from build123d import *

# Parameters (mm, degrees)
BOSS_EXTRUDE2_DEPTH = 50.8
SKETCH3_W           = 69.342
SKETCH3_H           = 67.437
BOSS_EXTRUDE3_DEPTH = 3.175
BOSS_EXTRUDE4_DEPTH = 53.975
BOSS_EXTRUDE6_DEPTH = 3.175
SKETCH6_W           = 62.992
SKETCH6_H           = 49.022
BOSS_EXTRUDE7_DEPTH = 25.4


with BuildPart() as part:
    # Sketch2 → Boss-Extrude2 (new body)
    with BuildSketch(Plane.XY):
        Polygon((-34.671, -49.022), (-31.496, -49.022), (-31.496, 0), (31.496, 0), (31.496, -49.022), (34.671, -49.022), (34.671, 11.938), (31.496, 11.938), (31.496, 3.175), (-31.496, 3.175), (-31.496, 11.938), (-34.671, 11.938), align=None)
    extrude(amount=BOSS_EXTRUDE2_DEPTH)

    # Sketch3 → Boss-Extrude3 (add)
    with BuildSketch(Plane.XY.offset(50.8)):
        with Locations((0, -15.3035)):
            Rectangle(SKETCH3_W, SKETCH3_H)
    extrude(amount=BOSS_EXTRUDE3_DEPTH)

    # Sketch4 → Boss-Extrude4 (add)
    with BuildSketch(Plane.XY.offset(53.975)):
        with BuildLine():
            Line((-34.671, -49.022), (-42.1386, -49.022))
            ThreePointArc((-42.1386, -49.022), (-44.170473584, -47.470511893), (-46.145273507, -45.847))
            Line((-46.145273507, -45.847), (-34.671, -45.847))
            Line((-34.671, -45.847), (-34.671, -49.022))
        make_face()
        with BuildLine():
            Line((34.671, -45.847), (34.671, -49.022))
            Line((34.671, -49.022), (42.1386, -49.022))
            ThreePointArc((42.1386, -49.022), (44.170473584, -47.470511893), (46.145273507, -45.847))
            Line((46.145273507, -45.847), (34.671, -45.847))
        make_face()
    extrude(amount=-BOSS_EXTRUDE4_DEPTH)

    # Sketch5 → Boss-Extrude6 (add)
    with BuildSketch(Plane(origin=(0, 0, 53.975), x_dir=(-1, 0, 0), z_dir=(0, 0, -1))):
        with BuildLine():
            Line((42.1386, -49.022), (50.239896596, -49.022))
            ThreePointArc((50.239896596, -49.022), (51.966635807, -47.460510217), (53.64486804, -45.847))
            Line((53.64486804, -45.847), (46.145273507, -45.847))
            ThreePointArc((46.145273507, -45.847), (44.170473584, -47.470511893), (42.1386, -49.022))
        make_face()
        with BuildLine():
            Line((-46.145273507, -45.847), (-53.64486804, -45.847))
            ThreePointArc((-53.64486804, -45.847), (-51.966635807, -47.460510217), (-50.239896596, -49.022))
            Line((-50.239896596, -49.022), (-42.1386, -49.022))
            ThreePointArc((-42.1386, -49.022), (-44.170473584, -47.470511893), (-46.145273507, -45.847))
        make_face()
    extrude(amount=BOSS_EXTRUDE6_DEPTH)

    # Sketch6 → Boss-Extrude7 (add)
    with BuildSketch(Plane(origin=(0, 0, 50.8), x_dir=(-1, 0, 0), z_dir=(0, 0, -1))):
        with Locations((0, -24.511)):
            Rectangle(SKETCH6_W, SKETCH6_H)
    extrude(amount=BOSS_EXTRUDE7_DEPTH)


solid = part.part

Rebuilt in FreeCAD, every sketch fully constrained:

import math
import FreeCAD as App
import Part
import Sketcher
Q = App.Units.Quantity

doc = App.newDocument("Part")
params = doc.addObject("Spreadsheet::Sheet", "Params")
for row, (alias, value) in enumerate([
    ("sketch1_height", "2.4 in"),
    ("sketch1_width", "2.48 in"),
    ("sketch1_height2", "1.93 in"),
    ("sketch1_width2", "0.125 in"),
    ("sketch1_height3", "0.345 in"),
    ("pad1_length", "2 in"),
    ("sketch2_width", "2.73 in"),
    ("sketch2_height", "2.655 in"),
    ("pad2_length", "0.125 in"),
    ("sketch3_radius", "2.8 in"),
    ("sketch3_width", "0.294 in"),
    ("sketch3_height", "0.125 in"),
    ("pad3_length", "2.125 in"),
    ("sketch4_radius", "3 in"),
    ("sketch4_radius2", "2.8 in"),
    ("pad4_length", "0.125 in"),
    ("sketch5_width", "2.48 in"),
    ("sketch5_height", "1.93 in"),
    ("pad5_length", "1 in"),
], start=1):
    params.set(f"A{row}", alias)
    params.set(f"B{row}", "=" + value)
    params.setAlias(f"B{row}", alias)

body = doc.addObject("PartDesign::Body", "Body")

sketch1 = body.newObject("Sketcher::SketchObject", "Sketch")
sketch1.AttachmentSupport = (doc.getObject("XY_Plane"), [""])
sketch1.MapMode = "FlatFace"
sketch1.addGeometry([
    Part.LineSegment(App.Vector(-34.7, -49, 0), App.Vector(-31.5, -49, 0)),
    Part.LineSegment(App.Vector(-31.5, -49, 0), App.Vector(-31.5, 0, 0)),
    Part.LineSegment(App.Vector(-31.5, 0, 0), App.Vector(31.5, 0, 0)),
    Part.LineSegment(App.Vector(31.5, 0, 0), App.Vector(31.5, -49, 0)),
    Part.LineSegment(App.Vector(31.5, -49, 0), App.Vector(34.7, -49, 0)),
    Part.LineSegment(App.Vector(34.7, -49, 0), App.Vector(34.7, 11.9, 0)),
    Part.LineSegment(App.Vector(34.7, 11.9, 0), App.Vector(31.5, 11.9, 0)),
    Part.LineSegment(App.Vector(31.5, 11.9, 0), App.Vector(31.5, 3.2, 0)),
    Part.LineSegment(App.Vector(31.5, 3.2, 0), App.Vector(-31.5, 3.2, 0)),
    Part.LineSegment(App.Vector(-31.5, 3.2, 0), App.Vector(-31.5, 11.9, 0)),
    Part.LineSegment(App.Vector(-31.5, 11.9, 0), App.Vector(-34.7, 11.9, 0)),
    Part.LineSegment(App.Vector(-34.7, 11.9, 0), App.Vector(-34.7, -49, 0)),
], False)
sketch1.addConstraint([
    Sketcher.Constraint("Coincident", 0, 2, 1, 1),
    Sketcher.Constraint("Coincident", 1, 2, 2, 1),
    Sketcher.Constraint("Coincident", 2, 2, 3, 1),
    Sketcher.Constraint("Coincident", 3, 2, 4, 1),
    Sketcher.Constraint("Coincident", 4, 2, 5, 1),
    Sketcher.Constraint("Coincident", 5, 2, 6, 1),
    Sketcher.Constraint("Coincident", 6, 2, 7, 1),
    Sketcher.Constraint("Coincident", 7, 2, 8, 1),
    Sketcher.Constraint("Coincident", 8, 2, 9, 1),
    Sketcher.Constraint("Coincident", 9, 2, 10, 1),
    Sketcher.Constraint("Coincident", 10, 2, 11, 1),
    Sketcher.Constraint("Coincident", 11, 2, 0, 1),
    Sketcher.Constraint("Horizontal", 0),
    Sketcher.Constraint("Vertical", 1),
    Sketcher.Constraint("Horizontal", 2),
    Sketcher.Constraint("Vertical", 3),
    Sketcher.Constraint("Horizontal", 4),
    Sketcher.Constraint("Vertical", 5),
    Sketcher.Constraint("Horizontal", 6),
    Sketcher.Constraint("Vertical", 7),
    Sketcher.Constraint("Horizontal", 8),
    Sketcher.Constraint("Vertical", 9),
    Sketcher.Constraint("Horizontal", 10),
    Sketcher.Constraint("Vertical", 11),
    Sketcher.Constraint("Symmetric", 1, 2, 2, 2, -1, 1),
    Sketcher.Constraint("Symmetric", 6, 2, 9, 2, -2),
    Sketcher.Constraint("Symmetric", 4, 2, 11, 2, -2),
    Sketcher.Constraint("Vertical", 3, 2, 6, 2),
    Sketcher.Constraint("DistanceY", 5, 1, 5, 2, Q("2.4 in")),
    Sketcher.Constraint("DistanceX", 2, 1, 2, 2, Q("2.48 in")),
    Sketcher.Constraint("DistanceY", 1, 1, 1, 2, Q("1.93 in")),
    Sketcher.Constraint("DistanceX", 0, 1, 0, 2, Q("0.125 in")),
    Sketcher.Constraint("DistanceY", 7, 2, 7, 1, Q("0.345 in")),
])
sketch1.setExpression("Constraints[28]", "Params.sketch1_height")
sketch1.setExpression("Constraints[29]", "Params.sketch1_width")
sketch1.setExpression("Constraints[30]", "Params.sketch1_height2")
sketch1.setExpression("Constraints[31]", "Params.sketch1_width2")
sketch1.setExpression("Constraints[32]", "Params.sketch1_height3")
pad1 = body.newObject("PartDesign::Pad", "Pad")
pad1.Profile = sketch1
pad1.setExpression("Length", "Params.pad1_length")

sketch2 = body.newObject("Sketcher::SketchObject", "Sketch001")
sketch2.AttachmentSupport = (doc.getObject("XY_Plane"), [""])
sketch2.MapMode = "FlatFace"
sketch2.AttachmentOffset = App.Placement(App.Vector(0, 0, 2 * 25.4), App.Rotation())
sketch2.addGeometry([
    Part.LineSegment(App.Vector(-35, 18, 0), App.Vector(-35, -49, 0)),
    Part.LineSegment(App.Vector(-35, -49, 0), App.Vector(35, -49, 0)),
    Part.LineSegment(App.Vector(35, -49, 0), App.Vector(35, 18, 0)),
    Part.LineSegment(App.Vector(35, 18, 0), App.Vector(-35, 18, 0)),
], False)
sketch2.addConstraint([
    Sketcher.Constraint("Coincident", 0, 2, 1, 1),
    Sketcher.Constraint("Coincident", 1, 2, 2, 1),
    Sketcher.Constraint("Coincident", 2, 2, 3, 1),
    Sketcher.Constraint("Coincident", 3, 2, 0, 1),
    Sketcher.Constraint("Vertical", 0),
    Sketcher.Constraint("Horizontal", 1),
    Sketcher.Constraint("Vertical", 2),
    Sketcher.Constraint("Horizontal", 3),
    Sketcher.Constraint("DistanceX", 1, 1, 1, 2, Q("2.73 in")),
    Sketcher.Constraint("DistanceY", 0, 2, 0, 1, Q("2.655 in")),
    Sketcher.Constraint("DistanceY", 0, 2, -1, 1, Q("1.93 in")),
    Sketcher.Constraint("DistanceX", 0, 2, -1, 1, Q("1.365 in")),
])
sketch2.setExpression("Constraints[8]", "Params.sketch2_width")
sketch2.setExpression("Constraints[9]", "Params.sketch2_height")
pad2 = body.newObject("PartDesign::Pad", "Pad001")
pad2.Profile = sketch2
pad2.setExpression("Length", "Params.pad2_length")

sketch3 = body.newObject("Sketcher::SketchObject", "Sketch002")
sketch3.AttachmentSupport = (doc.getObject("XY_Plane"), [""])
sketch3.MapMode = "FlatFace"
sketch3.AttachmentOffset = App.Placement(App.Vector(0, 0, 2.125 * 25.4), App.Rotation())
sketch3.addGeometry([
    Part.LineSegment(App.Vector(-42.1, -49, 0), App.Vector(-34.7, -49, 0)),
    Part.LineSegment(App.Vector(-34.7, -49, 0), App.Vector(-34.7, -45.8, 0)),
    Part.LineSegment(App.Vector(-34.7, -45.8, 0), App.Vector(-46.1, -45.8, 0)),
    Part.ArcOfCircle(Part.Circle(App.Vector(0, 8.3, 0), App.Vector(0, 0, 1), 71.1), math.radians(-130.45), math.radians(-126.33)),
    Part.LineSegment(App.Vector(34.7, -45.8, 0), App.Vector(34.7, -49, 0)),
    Part.LineSegment(App.Vector(34.7, -49, 0), App.Vector(42.1, -49, 0)),
    Part.ArcOfCircle(Part.Circle(App.Vector(0, 8.3, 0), App.Vector(0, 0, 1), 71.1), math.radians(-53.67), math.radians(-49.55)),
    Part.LineSegment(App.Vector(46.1, -45.8, 0), App.Vector(34.7, -45.8, 0)),
], False)
sketch3.addConstraint([
    Sketcher.Constraint("Coincident", 0, 2, 1, 1),
    Sketcher.Constraint("Coincident", 1, 2, 2, 1),
    Sketcher.Constraint("Coincident", 2, 2, 3, 1),
    Sketcher.Constraint("Coincident", 3, 2, 0, 1),
    Sketcher.Constraint("Coincident", 4, 2, 5, 1),
    Sketcher.Constraint("Coincident", 5, 2, 6, 1),
    Sketcher.Constraint("Coincident", 6, 2, 7, 1),
    Sketcher.Constraint("Coincident", 7, 2, 4, 1),
    Sketcher.Constraint("Horizontal", 0),
    Sketcher.Constraint("Vertical", 1),
    Sketcher.Constraint("Horizontal", 2),
    Sketcher.Constraint("Vertical", 4),
    Sketcher.Constraint("Horizontal", 5),
    Sketcher.Constraint("Horizontal", 7),
    Sketcher.Constraint("Coincident", 6, 3, 3, 3),
    Sketcher.Constraint("Equal", 3, 6),
    Sketcher.Constraint("Symmetric", 0, 2, 4, 2, -2),
    Sketcher.Constraint("Symmetric", 2, 2, 6, 2, -2),
    Sketcher.Constraint("Radius", 3, Q("2.8 in")),
    Sketcher.Constraint("DistanceX", 0, 1, 0, 2, Q("0.294 in")),
    Sketcher.Constraint("DistanceY", 1, 1, 1, 2, Q("0.125 in")),
    Sketcher.Constraint("DistanceY", 0, 2, -1, 1, Q("1.93 in")),
    Sketcher.Constraint("DistanceX", 0, 2, 4, 2, Q("2.73 in")),
])
sketch3.setExpression("Constraints[18]", "Params.sketch3_radius")
sketch3.setExpression("Constraints[19]", "Params.sketch3_width")
sketch3.setExpression("Constraints[20]", "Params.sketch3_height")
pad3 = body.newObject("PartDesign::Pad", "Pad002")
pad3.Profile = sketch3
pad3.setExpression("Length", "Params.pad3_length")
pad3.Reversed = True

sketch4 = body.newObject("Sketcher::SketchObject", "Sketch003")
sketch4.AttachmentSupport = (doc.getObject("XY_Plane"), [""])
sketch4.MapMode = "FlatFace"
sketch4.AttachmentOffset = App.Placement(App.Vector(0, 0, 2.125 * 25.4), App.Rotation())
sketch4.addGeometry([
    Part.LineSegment(App.Vector(-42.1, -49, 0), App.Vector(-50.2, -49, 0)),
    Part.ArcOfCircle(Part.Circle(App.Vector(0, 8.3, 0), App.Vector(0, 0, 1), 76.2), math.radians(-134.75), math.radians(-131.25)),
    Part.LineSegment(App.Vector(-53.6, -45.8, 0), App.Vector(-46.1, -45.8, 0)),
    Part.ArcOfCircle(Part.Circle(App.Vector(0, 8.3, 0), App.Vector(0, 0, 1), 71.1), math.radians(-130.45), math.radians(-126.33)),
    Part.LineSegment(App.Vector(46.1, -45.8, 0), App.Vector(53.6, -45.8, 0)),
    Part.ArcOfCircle(Part.Circle(App.Vector(0, 8.3, 0), App.Vector(0, 0, 1), 76.2), math.radians(-48.75), math.radians(-45.25)),
    Part.LineSegment(App.Vector(50.2, -49, 0), App.Vector(42.1, -49, 0)),
    Part.ArcOfCircle(Part.Circle(App.Vector(0, 8.3, 0), App.Vector(0, 0, 1), 71.1), math.radians(-53.67), math.radians(-49.55)),
], False)
sketch4.addConstraint([
    Sketcher.Constraint("Coincident", 0, 2, 1, 2),
    Sketcher.Constraint("Coincident", 1, 1, 2, 1),
    Sketcher.Constraint("Coincident", 2, 2, 3, 1),
    Sketcher.Constraint("Coincident", 3, 2, 0, 1),
    Sketcher.Constraint("Coincident", 4, 2, 5, 2),
    Sketcher.Constraint("Coincident", 5, 1, 6, 1),
    Sketcher.Constraint("Coincident", 6, 2, 7, 1),
    Sketcher.Constraint("Coincident", 7, 2, 4, 1),
    Sketcher.Constraint("Horizontal", 0),
    Sketcher.Constraint("Horizontal", 2),
    Sketcher.Constraint("Horizontal", 4),
    Sketcher.Constraint("Horizontal", 6),
    Sketcher.Constraint("Coincident", 3, 3, 1, 3),
    Sketcher.Constraint("Coincident", 5, 3, 1, 3),
    Sketcher.Constraint("Coincident", 7, 3, 1, 3),
    Sketcher.Constraint("Equal", 1, 5),
    Sketcher.Constraint("Equal", 3, 7),
    Sketcher.Constraint("Symmetric", 1, 1, 4, 2, -2),
    Sketcher.Constraint("Horizontal", 3, 2, 5, 1),
    Sketcher.Constraint("Radius", 1, Q("3 in")),
    Sketcher.Constraint("Radius", 3, Q("2.8 in")),
    Sketcher.Constraint("DistanceY", 0, 2, -1, 1, Q("1.93 in")),
    Sketcher.Constraint("DistanceY", 1, 1, -1, 1, Q("1.805 in")),
    Sketcher.Constraint("DistanceX", 3, 2, -1, 1, Q("1.659 in")),
])
sketch4.setExpression("Constraints[19]", "Params.sketch4_radius")
sketch4.setExpression("Constraints[20]", "Params.sketch4_radius2")
pad4 = body.newObject("PartDesign::Pad", "Pad003")
pad4.Profile = sketch4
pad4.setExpression("Length", "Params.pad4_length")
pad4.Reversed = True

sketch5 = body.newObject("Sketcher::SketchObject", "Sketch004")
sketch5.AttachmentSupport = (doc.getObject("XY_Plane"), [""])
sketch5.MapMode = "FlatFace"
sketch5.AttachmentOffset = App.Placement(App.Vector(0, 0, 2 * 25.4), App.Rotation())
sketch5.addGeometry([
    Part.LineSegment(App.Vector(31, 0, 0), App.Vector(31, -49, 0)),
    Part.LineSegment(App.Vector(31, -49, 0), App.Vector(-31, -49, 0)),
    Part.LineSegment(App.Vector(-31, -49, 0), App.Vector(-31, 0, 0)),
    Part.LineSegment(App.Vector(-31, 0, 0), App.Vector(31, 0, 0)),
], False)
sketch5.addConstraint([
    Sketcher.Constraint("Coincident", 0, 2, 1, 1),
    Sketcher.Constraint("Coincident", 1, 2, 2, 1),
    Sketcher.Constraint("Coincident", 2, 2, 3, 1),
    Sketcher.Constraint("Coincident", 3, 2, 0, 1),
    Sketcher.Constraint("Vertical", 0),
    Sketcher.Constraint("Horizontal", 1),
    Sketcher.Constraint("Vertical", 2),
    Sketcher.Constraint("Horizontal", 3),
    Sketcher.Constraint("Symmetric", 2, 2, 3, 2, -1, 1),
    Sketcher.Constraint("DistanceX", 1, 2, 1, 1, Q("2.48 in")),
    Sketcher.Constraint("DistanceY", 0, 2, 0, 1, Q("1.93 in")),
])
sketch5.setExpression("Constraints[9]", "Params.sketch5_width")
sketch5.setExpression("Constraints[10]", "Params.sketch5_height")
pad5 = body.newObject("PartDesign::Pad", "Pad004")
pad5.Profile = sketch5
pad5.setExpression("Length", "Params.pad5_length")
pad5.Reversed = True

doc.recompute()
